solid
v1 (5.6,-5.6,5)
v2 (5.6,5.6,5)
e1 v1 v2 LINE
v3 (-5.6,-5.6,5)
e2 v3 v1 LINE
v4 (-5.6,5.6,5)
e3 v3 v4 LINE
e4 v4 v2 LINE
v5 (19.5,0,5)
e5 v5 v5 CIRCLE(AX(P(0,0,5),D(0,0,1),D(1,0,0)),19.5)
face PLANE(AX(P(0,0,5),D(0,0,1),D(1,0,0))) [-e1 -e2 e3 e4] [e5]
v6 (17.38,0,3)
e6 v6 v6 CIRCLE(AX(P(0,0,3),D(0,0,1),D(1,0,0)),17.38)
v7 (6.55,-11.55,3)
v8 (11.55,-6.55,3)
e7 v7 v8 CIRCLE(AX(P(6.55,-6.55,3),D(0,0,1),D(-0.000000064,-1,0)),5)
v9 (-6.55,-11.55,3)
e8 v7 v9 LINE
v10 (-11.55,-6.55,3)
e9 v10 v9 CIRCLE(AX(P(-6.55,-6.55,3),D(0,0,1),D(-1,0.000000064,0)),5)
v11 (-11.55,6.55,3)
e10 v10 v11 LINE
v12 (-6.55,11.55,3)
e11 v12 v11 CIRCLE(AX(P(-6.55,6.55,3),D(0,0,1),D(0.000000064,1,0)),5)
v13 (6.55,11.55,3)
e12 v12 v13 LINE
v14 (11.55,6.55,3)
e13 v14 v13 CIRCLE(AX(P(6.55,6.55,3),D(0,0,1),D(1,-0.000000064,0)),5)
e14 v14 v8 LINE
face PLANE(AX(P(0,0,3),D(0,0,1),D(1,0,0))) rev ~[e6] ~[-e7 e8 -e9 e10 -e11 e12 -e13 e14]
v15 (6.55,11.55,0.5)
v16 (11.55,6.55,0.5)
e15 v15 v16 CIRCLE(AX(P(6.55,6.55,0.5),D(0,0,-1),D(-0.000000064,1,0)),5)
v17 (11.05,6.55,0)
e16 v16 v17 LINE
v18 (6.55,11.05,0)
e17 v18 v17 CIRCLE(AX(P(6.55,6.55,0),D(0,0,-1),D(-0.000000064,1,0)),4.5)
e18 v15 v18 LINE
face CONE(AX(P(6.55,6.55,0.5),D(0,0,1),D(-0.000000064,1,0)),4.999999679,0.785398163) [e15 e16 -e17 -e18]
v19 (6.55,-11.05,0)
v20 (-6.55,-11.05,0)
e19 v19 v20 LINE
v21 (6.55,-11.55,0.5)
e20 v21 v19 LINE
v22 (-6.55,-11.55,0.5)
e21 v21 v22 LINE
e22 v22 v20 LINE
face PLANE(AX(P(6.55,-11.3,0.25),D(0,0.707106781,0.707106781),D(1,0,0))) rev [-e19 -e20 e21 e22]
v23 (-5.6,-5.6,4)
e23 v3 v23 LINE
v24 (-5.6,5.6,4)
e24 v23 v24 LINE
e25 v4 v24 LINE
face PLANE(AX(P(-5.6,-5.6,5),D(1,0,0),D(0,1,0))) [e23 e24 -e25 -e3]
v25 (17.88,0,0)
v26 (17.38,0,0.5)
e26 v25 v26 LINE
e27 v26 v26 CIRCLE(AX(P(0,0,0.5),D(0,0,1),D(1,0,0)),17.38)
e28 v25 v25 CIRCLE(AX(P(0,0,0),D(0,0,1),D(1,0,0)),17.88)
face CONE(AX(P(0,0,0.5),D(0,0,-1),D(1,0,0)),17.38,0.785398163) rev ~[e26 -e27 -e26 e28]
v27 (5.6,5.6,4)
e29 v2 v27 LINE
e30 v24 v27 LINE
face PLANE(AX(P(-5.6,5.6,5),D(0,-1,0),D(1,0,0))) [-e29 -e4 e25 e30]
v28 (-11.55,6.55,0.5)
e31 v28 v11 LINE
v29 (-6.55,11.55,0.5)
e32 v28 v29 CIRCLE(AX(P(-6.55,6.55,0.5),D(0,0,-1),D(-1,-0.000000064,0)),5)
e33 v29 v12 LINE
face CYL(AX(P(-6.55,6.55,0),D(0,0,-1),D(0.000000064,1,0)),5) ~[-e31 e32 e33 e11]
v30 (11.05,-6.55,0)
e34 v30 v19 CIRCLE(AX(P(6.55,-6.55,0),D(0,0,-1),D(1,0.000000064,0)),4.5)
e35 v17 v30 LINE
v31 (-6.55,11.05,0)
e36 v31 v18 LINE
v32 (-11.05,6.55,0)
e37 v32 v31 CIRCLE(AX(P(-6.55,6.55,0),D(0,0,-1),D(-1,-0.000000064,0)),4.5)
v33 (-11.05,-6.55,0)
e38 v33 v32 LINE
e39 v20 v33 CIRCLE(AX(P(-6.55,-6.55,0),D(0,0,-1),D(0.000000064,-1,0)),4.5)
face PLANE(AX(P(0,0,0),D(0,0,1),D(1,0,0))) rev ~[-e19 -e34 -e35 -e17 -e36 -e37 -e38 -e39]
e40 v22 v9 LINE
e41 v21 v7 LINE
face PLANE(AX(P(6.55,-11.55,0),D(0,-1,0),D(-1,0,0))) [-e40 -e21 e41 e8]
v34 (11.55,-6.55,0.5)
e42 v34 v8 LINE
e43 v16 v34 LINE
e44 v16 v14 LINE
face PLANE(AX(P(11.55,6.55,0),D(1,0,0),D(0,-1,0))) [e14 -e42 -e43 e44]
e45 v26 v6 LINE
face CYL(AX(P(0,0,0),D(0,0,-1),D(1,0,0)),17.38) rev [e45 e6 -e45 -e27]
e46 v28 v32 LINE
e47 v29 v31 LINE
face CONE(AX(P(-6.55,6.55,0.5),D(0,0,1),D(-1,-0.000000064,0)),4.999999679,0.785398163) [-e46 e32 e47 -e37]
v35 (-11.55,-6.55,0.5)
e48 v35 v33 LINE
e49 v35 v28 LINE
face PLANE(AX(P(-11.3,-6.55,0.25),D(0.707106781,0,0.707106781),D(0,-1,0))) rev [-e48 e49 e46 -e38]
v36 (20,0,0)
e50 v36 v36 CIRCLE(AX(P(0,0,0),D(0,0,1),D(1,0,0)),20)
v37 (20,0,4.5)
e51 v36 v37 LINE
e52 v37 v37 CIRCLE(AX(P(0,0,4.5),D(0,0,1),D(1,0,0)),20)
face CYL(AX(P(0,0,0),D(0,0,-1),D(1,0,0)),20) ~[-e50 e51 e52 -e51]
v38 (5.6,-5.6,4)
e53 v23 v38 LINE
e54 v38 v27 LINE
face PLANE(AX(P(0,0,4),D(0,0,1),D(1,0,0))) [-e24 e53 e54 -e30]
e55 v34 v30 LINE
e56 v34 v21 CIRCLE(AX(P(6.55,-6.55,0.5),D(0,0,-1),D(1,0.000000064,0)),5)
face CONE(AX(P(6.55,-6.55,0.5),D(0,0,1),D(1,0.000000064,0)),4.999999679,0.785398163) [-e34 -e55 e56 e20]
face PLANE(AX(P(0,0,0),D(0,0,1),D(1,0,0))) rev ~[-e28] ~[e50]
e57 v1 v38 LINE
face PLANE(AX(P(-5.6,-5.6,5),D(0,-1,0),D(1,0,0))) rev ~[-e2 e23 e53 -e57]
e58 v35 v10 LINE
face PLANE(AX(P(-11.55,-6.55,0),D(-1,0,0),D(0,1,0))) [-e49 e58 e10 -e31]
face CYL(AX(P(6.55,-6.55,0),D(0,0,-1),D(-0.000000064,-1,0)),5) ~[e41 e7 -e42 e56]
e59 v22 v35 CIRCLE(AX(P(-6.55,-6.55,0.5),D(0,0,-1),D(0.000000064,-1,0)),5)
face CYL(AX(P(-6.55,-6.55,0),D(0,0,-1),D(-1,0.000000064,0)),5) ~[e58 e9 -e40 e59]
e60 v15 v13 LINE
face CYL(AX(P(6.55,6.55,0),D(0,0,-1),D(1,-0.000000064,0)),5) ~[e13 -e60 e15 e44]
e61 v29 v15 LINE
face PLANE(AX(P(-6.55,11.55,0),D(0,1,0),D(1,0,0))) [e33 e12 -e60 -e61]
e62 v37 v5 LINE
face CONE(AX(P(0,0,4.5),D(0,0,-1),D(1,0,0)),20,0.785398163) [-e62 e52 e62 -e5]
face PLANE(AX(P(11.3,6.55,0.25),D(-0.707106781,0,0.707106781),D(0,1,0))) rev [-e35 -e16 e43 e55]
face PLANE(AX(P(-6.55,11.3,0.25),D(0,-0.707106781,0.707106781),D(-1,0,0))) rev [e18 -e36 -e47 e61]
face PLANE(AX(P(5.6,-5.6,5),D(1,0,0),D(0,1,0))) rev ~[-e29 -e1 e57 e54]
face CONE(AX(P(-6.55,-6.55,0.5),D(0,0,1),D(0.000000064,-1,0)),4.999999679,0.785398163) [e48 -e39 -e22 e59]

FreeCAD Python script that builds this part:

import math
import FreeCAD as App
import Part
import Sketcher
from FreeCAD import Vector


def edges_at(feature, points):
    """Names of the edges that pass closest to the given points."""
    edges = feature.Shape.Edges
    near = lambda p: min(range(len(edges)), key=lambda i: edges[i].distToShape(Part.Vertex(*p))[0])
    return sorted({f"Edge{near(p) + 1}" for p in points})

doc = App.newDocument("Part")
body = doc.addObject("PartDesign::Body", "Body")

sketch1 = doc.addObject("Sketcher::SketchObject", "Sketch")
body.addObject(sketch1)
sketch1.AttachmentSupport = (doc.XY_Plane, [""])
sketch1.MapMode = "FlatFace"
sketch1.addGeometry(Part.Circle(Vector(0, 0, 0), Vector(0, 0, 1), 20), False)
sketch1.addConstraint([
    Sketcher.Constraint("Coincident", 0, 3, -1, 1),
    Sketcher.Constraint("Diameter", 0, 40.0),
])
pad1 = doc.addObject("PartDesign::Pad", "Pad")
body.addObject(pad1)
pad1.Profile = sketch1
pad1.Length = 5

sketch2 = doc.addObject("Sketcher::SketchObject", "Sketch001")
body.addObject(sketch2)
sketch2.AttachmentSupport = (doc.XY_Plane, [""])
sketch2.MapMode = "FlatFace"
sketch2.addGeometry([
    Part.Circle(Vector(0, 0, 0), Vector(0, 0, 1), 17.38),
    Part.ArcOfCircle(Part.Circle(Vector(-6.55, 6.55, 0), Vector(0, 0, 1), 5), math.radians(89.999996), math.radians(180.000004)),
    Part.LineSegment(Vector(-6.55, 11.55, 0), Vector(6.55, 11.55, 0)),
    Part.ArcOfCircle(Part.Circle(Vector(6.55, 6.55, 0), Vector(0, 0, 1), 5), math.radians(-0.000004), math.radians(90.000004)),
    Part.LineSegment(Vector(11.55, 6.55, 0), Vector(11.55, -6.55, 0)),
    Part.ArcOfCircle(Part.Circle(Vector(6.55, -6.55, 0), Vector(0, 0, 1), 5), math.radians(-90.000004), math.radians(0.000004)),
    Part.LineSegment(Vector(6.55, -11.55, 0), Vector(-6.55, -11.55, 0)),
    Part.ArcOfCircle(Part.Circle(Vector(-6.55, -6.55, 0), Vector(0, 0, 1), 5), math.radians(179.999996), math.radians(270.000004)),
    Part.LineSegment(Vector(-11.55, -6.55, 0), Vector(-11.55, 6.55, 0)),
], False)
sketch2.addConstraint([
    Sketcher.Constraint("Tangent", 1, 1, 2, 1),
    Sketcher.Constraint("Tangent", 2, 2, 3, 2),
    Sketcher.Constraint("Tangent", 3, 1, 4, 1),
    Sketcher.Constraint("Tangent", 4, 2, 5, 2),
    Sketcher.Constraint("Tangent", 5, 1, 6, 1),
    Sketcher.Constraint("Tangent", 6, 2, 7, 2),
    Sketcher.Constraint("Tangent", 7, 1, 8, 1),
    Sketcher.Constraint("Tangent", 8, 2, 1, 2),
    Sketcher.Constraint("Horizontal", 2),
    Sketcher.Constraint("Vertical", 4),
    Sketcher.Constraint("Horizontal", 6),
    Sketcher.Constraint("Vertical", 8),
    Sketcher.Constraint("Coincident", 0, 3, -1, 1),
    Sketcher.Constraint("Equal", 1, 3),
    Sketcher.Constraint("Equal", 3, 5),
    Sketcher.Constraint("Equal", 5, 7),
    Sketcher.Constraint("Symmetric", 1, 3, 5, 3, -1, 1),
    Sketcher.Constraint("Equal", 6, 4),
    Sketcher.Constraint("Radius", 1, 5.0),
    Sketcher.Constraint("Diameter", 0, 34.76),
    Sketcher.Constraint("DistanceX", 2, 1, 2, 2, 13.1),
])
pocket1 = doc.addObject("PartDesign::Pocket", "Pocket")
body.addObject(pocket1)
pocket1.Profile = sketch2
pocket1.Length = 3
pocket1.Reversed = True
doc.recompute()

chamfer = doc.addObject("PartDesign::Chamfer", "Chamfer")
body.addObject(chamfer)
chamfer.Base = (pocket1, edges_at(pocket1, [
    (0, 11.55, 0),
    (10.086, 10.086, 0),
    (11.55, 0, 0),
    (10.086, -10.086, 0),
    (0, -11.55, 0),
    (-10.086, -10.086, 0),
    (-11.55, 0, 0),
    (-10.086, 10.086, 0),
    (-17.38, 0, 0),
    (-20, 0, 5),
]))
chamfer.Size = 0.5

sketch3 = doc.addObject("Sketcher::SketchObject", "Sketch002")
body.addObject(sketch3)
sketch3.AttachmentSupport = (doc.XY_Plane, [""])
sketch3.MapMode = "FlatFace"
sketch3.AttachmentOffset = App.Placement(Vector(0, 0, 5), App.Rotation())
sketch3.addGeometry([
    Part.LineSegment(Vector(-5.6, 5.6, 0), Vector(-5.6, -5.6, 0)),
    Part.LineSegment(Vector(-5.6, -5.6, 0), Vector(5.6, -5.6, 0)),
    Part.LineSegment(Vector(5.6, -5.6, 0), Vector(5.6, 5.6, 0)),
    Part.LineSegment(Vector(5.6, 5.6, 0), Vector(-5.6, 5.6, 0)),
], False)
sketch3.addConstraint([
    Sketcher.Constraint("Coincident", 0, 2, 1, 1),
    Sketcher.Constraint("Coincident", 1, 2, 2, 1),
    Sketcher.Constraint("Coincident", 2, 2, 3, 1),
    Sketcher.Constraint("Coincident", 3, 2, 0, 1),
    Sketcher.Constraint("Vertical", 0),
    Sketcher.Constraint("Horizontal", 1),
    Sketcher.Constraint("Vertical", 2),
    Sketcher.Constraint("Horizontal", 3),
    Sketcher.Constraint("Symmetric", 0, 2, 2, 2, -1, 1),
    Sketcher.Constraint("Equal", 3, 0),
    Sketcher.Constraint("DistanceX", 1, 1, 1, 2, 11.2),
])
pocket2 = doc.addObject("PartDesign::Pocket", "Pocket001")
body.addObject(pocket2)
pocket2.Profile = sketch3
pocket2.Length = 1

doc.recompute()
